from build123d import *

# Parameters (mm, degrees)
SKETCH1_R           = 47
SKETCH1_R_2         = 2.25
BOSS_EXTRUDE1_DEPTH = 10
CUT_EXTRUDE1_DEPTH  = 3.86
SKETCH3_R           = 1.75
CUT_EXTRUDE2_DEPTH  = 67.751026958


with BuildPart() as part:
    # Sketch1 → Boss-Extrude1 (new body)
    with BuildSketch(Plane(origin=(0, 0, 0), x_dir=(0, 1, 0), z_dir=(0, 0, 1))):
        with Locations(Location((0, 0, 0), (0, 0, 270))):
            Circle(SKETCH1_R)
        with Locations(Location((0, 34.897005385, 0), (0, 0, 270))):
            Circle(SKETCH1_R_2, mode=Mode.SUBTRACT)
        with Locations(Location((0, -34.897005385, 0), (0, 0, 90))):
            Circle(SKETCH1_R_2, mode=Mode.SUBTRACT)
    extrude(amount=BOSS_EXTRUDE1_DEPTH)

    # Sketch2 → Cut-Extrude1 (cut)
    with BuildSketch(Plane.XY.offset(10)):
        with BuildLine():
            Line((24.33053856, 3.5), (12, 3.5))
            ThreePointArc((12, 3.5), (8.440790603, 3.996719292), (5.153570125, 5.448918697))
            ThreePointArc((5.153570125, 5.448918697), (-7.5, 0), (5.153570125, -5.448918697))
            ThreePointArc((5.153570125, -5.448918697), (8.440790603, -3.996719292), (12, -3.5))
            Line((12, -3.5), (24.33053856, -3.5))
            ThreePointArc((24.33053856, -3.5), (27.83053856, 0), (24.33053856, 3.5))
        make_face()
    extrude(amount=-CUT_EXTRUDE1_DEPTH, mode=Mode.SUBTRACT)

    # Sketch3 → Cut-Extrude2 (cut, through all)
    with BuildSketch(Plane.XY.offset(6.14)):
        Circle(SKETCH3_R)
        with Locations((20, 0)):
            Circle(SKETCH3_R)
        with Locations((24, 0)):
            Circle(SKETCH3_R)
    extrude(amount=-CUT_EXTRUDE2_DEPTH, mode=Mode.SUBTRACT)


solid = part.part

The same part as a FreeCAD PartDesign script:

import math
import FreeCAD as App
import Part
import Sketcher

V = App.Vector
Q = App.Units.Quantity

doc = App.newDocument("Part")
body = doc.addObject("PartDesign::Body", "Body")

# Sketch on XY plane
sketch1 = body.newObject("Sketcher::SketchObject", "Sketch")
sketch1.AttachmentSupport = (doc.getObject("XY_Plane"), [""])
sketch1.MapMode = "FlatFace"
sketch1.addGeometry(Part.Circle(V(0, 0, 0), V(0, 0, 1), 47), False)
sketch1.addGeometry(Part.Circle(V(-34.897005, 0, 0), V(0, 0, 1), 2.25), False)
sketch1.addGeometry(Part.Circle(V(34.897005, 0, 0), V(0, 0, 1), 2.25), False)
sketch1.addConstraint(Sketcher.Constraint("Coincident", 0, 3, -1, 1))
sketch1.addConstraint(Sketcher.Constraint("Equal", 1, 2))
sketch1.addConstraint(Sketcher.Constraint("Symmetric", 1, 3, 2, 3, -1, 1))
sketch1.addConstraint(Sketcher.Constraint("PointOnObject", 1, 3, -1))
sketch1.addConstraint(Sketcher.Constraint("Diameter", 0, Q("94 mm")))
sketch1.addConstraint(Sketcher.Constraint("Diameter", 1, Q("4.5 mm")))
sketch1.addConstraint(Sketcher.Constraint("DistanceX", 1, 3, 2, 3, Q("69.794011 mm")))
pad1 = body.newObject("PartDesign::Pad", "Pad")
pad1.Profile = sketch1
pad1.Length = 10

# Sketch on XY plane
sketch2 = body.newObject("Sketcher::SketchObject", "Sketch001")
sketch2.AttachmentSupport = (doc.getObject("XY_Plane"), [""])
sketch2.MapMode = "FlatFace"
sketch2.AttachmentOffset = App.Placement(V(0, 0, 10), App.Rotation())
sketch2.addGeometry(Part.LineSegment(V(24.330539, 3.5, 0), V(12, 3.5, 0)), False)
sketch2.addGeometry(Part.ArcOfCircle(Part.Circle(V(12, 16.5, 0), V(0, 0, 1), 13), math.radians(-121.779283), math.radians(-90)), False)
sketch2.addGeometry(Part.ArcOfCircle(Part.Circle(V(0, 0, 0), V(0, 0, 1), 7.5), math.radians(46.595649), math.radians(313.404351)), False)
sketch2.addGeometry(Part.ArcOfCircle(Part.Circle(V(12, -16.5, 0), V(0, 0, 1), 13), math.radians(90), math.radians(121.779283)), False)
sketch2.addGeometry(Part.LineSegment(V(12, -3.5, 0), V(24.330539, -3.5, 0)), False)
sketch2.addGeometry(Part.ArcOfCircle(Part.Circle(V(24.330539, 0, 0), V(0, 0, 1), 3.5), math.radians(-90), math.radians(90)), False)
sketch2.addConstraint(Sketcher.Constraint("Tangent", 0, 2, 1, 2))
sketch2.addConstraint(Sketcher.Constraint("Coincident", 1, 1, 2, 1))
sketch2.addConstraint(Sketcher.Constraint("Coincident", 2, 2, 3, 2))
sketch2.addConstraint(Sketcher.Constraint("Tangent", 3, 1, 4, 1))
sketch2.addConstraint(Sketcher.Constraint("Tangent", 4, 2, 5, 1))
sketch2.addConstraint(Sketcher.Constraint("Tangent", 5, 2, 0, 1))
sketch2.addConstraint(Sketcher.Constraint("Horizontal", 0))
sketch2.addConstraint(Sketcher.Constraint("Horizontal", 4))
sketch2.addConstraint(Sketcher.Constraint("Coincident", 2, 3, -1, 1))
sketch2.addConstraint(Sketcher.Constraint("Equal", 1, 3))
sketch2.addConstraint(Sketcher.Constraint("Symmetric", 1, 3, 3, 3, -1))
sketch2.addConstraint(Sketcher.Constraint("Radius", 1, Q("13 mm")))
sketch2.addConstraint(Sketcher.Constraint("Radius", 2, Q("7.5 mm")))
sketch2.addConstraint(Sketcher.Constraint("Radius", 5, Q("3.5 mm")))
sketch2.addConstraint(Sketcher.Constraint("DistanceX", -1, 1, 1, 3, Q("12 mm")))
sketch2.addConstraint(Sketcher.Constraint("DistanceX", 0, 2, 0, 1, Q("12.330539 mm")))
pocket1 = body.newObject("PartDesign::Pocket", "Pocket")
pocket1.Profile = sketch2
pocket1.Length = 3.86

# Sketch on XY plane
sketch3 = body.newObject("Sketcher::SketchObject", "Sketch002")
sketch3.AttachmentSupport = (doc.getObject("XY_Plane"), [""])
sketch3.MapMode = "FlatFace"
sketch3.AttachmentOffset = App.Placement(V(0, 0, 6.14), App.Rotation())
sketch3.addGeometry(Part.Circle(V(0, 0, 0), V(0, 0, 1), 1.75), False)
sketch3.addGeometry(Part.Circle(V(20, 0, 0), V(0, 0, 1), 1.75), False)
sketch3.addGeometry(Part.Circle(V(24, 0, 0), V(0, 0, 1), 1.75), False)
sketch3.addConstraint(Sketcher.Constraint("Coincident", 0, 3, -1, 1))
sketch3.addConstraint(Sketcher.Constraint("Equal", 0, 1))
sketch3.addConstraint(Sketcher.Constraint("Equal", 1, 2))
sketch3.addConstraint(Sketcher.Constraint("PointOnObject", 1, 3, -1))
sketch3.addConstraint(Sketcher.Constraint("PointOnObject", 2, 3, -1))
sketch3.addConstraint(Sketcher.Constraint("Diameter", 0, Q("3.5 mm")))
sketch3.addConstraint(Sketcher.Constraint("DistanceX", -1, 1, 1, 3, Q("20 mm")))
sketch3.addConstraint(Sketcher.Constraint("DistanceX", -1, 1, 2, 3, Q("24 mm")))
pocket2 = body.newObject("PartDesign::Pocket", "Pocket001")
pocket2.Profile = sketch3
pocket2.Type = "ThroughAll"

doc.recompute()
